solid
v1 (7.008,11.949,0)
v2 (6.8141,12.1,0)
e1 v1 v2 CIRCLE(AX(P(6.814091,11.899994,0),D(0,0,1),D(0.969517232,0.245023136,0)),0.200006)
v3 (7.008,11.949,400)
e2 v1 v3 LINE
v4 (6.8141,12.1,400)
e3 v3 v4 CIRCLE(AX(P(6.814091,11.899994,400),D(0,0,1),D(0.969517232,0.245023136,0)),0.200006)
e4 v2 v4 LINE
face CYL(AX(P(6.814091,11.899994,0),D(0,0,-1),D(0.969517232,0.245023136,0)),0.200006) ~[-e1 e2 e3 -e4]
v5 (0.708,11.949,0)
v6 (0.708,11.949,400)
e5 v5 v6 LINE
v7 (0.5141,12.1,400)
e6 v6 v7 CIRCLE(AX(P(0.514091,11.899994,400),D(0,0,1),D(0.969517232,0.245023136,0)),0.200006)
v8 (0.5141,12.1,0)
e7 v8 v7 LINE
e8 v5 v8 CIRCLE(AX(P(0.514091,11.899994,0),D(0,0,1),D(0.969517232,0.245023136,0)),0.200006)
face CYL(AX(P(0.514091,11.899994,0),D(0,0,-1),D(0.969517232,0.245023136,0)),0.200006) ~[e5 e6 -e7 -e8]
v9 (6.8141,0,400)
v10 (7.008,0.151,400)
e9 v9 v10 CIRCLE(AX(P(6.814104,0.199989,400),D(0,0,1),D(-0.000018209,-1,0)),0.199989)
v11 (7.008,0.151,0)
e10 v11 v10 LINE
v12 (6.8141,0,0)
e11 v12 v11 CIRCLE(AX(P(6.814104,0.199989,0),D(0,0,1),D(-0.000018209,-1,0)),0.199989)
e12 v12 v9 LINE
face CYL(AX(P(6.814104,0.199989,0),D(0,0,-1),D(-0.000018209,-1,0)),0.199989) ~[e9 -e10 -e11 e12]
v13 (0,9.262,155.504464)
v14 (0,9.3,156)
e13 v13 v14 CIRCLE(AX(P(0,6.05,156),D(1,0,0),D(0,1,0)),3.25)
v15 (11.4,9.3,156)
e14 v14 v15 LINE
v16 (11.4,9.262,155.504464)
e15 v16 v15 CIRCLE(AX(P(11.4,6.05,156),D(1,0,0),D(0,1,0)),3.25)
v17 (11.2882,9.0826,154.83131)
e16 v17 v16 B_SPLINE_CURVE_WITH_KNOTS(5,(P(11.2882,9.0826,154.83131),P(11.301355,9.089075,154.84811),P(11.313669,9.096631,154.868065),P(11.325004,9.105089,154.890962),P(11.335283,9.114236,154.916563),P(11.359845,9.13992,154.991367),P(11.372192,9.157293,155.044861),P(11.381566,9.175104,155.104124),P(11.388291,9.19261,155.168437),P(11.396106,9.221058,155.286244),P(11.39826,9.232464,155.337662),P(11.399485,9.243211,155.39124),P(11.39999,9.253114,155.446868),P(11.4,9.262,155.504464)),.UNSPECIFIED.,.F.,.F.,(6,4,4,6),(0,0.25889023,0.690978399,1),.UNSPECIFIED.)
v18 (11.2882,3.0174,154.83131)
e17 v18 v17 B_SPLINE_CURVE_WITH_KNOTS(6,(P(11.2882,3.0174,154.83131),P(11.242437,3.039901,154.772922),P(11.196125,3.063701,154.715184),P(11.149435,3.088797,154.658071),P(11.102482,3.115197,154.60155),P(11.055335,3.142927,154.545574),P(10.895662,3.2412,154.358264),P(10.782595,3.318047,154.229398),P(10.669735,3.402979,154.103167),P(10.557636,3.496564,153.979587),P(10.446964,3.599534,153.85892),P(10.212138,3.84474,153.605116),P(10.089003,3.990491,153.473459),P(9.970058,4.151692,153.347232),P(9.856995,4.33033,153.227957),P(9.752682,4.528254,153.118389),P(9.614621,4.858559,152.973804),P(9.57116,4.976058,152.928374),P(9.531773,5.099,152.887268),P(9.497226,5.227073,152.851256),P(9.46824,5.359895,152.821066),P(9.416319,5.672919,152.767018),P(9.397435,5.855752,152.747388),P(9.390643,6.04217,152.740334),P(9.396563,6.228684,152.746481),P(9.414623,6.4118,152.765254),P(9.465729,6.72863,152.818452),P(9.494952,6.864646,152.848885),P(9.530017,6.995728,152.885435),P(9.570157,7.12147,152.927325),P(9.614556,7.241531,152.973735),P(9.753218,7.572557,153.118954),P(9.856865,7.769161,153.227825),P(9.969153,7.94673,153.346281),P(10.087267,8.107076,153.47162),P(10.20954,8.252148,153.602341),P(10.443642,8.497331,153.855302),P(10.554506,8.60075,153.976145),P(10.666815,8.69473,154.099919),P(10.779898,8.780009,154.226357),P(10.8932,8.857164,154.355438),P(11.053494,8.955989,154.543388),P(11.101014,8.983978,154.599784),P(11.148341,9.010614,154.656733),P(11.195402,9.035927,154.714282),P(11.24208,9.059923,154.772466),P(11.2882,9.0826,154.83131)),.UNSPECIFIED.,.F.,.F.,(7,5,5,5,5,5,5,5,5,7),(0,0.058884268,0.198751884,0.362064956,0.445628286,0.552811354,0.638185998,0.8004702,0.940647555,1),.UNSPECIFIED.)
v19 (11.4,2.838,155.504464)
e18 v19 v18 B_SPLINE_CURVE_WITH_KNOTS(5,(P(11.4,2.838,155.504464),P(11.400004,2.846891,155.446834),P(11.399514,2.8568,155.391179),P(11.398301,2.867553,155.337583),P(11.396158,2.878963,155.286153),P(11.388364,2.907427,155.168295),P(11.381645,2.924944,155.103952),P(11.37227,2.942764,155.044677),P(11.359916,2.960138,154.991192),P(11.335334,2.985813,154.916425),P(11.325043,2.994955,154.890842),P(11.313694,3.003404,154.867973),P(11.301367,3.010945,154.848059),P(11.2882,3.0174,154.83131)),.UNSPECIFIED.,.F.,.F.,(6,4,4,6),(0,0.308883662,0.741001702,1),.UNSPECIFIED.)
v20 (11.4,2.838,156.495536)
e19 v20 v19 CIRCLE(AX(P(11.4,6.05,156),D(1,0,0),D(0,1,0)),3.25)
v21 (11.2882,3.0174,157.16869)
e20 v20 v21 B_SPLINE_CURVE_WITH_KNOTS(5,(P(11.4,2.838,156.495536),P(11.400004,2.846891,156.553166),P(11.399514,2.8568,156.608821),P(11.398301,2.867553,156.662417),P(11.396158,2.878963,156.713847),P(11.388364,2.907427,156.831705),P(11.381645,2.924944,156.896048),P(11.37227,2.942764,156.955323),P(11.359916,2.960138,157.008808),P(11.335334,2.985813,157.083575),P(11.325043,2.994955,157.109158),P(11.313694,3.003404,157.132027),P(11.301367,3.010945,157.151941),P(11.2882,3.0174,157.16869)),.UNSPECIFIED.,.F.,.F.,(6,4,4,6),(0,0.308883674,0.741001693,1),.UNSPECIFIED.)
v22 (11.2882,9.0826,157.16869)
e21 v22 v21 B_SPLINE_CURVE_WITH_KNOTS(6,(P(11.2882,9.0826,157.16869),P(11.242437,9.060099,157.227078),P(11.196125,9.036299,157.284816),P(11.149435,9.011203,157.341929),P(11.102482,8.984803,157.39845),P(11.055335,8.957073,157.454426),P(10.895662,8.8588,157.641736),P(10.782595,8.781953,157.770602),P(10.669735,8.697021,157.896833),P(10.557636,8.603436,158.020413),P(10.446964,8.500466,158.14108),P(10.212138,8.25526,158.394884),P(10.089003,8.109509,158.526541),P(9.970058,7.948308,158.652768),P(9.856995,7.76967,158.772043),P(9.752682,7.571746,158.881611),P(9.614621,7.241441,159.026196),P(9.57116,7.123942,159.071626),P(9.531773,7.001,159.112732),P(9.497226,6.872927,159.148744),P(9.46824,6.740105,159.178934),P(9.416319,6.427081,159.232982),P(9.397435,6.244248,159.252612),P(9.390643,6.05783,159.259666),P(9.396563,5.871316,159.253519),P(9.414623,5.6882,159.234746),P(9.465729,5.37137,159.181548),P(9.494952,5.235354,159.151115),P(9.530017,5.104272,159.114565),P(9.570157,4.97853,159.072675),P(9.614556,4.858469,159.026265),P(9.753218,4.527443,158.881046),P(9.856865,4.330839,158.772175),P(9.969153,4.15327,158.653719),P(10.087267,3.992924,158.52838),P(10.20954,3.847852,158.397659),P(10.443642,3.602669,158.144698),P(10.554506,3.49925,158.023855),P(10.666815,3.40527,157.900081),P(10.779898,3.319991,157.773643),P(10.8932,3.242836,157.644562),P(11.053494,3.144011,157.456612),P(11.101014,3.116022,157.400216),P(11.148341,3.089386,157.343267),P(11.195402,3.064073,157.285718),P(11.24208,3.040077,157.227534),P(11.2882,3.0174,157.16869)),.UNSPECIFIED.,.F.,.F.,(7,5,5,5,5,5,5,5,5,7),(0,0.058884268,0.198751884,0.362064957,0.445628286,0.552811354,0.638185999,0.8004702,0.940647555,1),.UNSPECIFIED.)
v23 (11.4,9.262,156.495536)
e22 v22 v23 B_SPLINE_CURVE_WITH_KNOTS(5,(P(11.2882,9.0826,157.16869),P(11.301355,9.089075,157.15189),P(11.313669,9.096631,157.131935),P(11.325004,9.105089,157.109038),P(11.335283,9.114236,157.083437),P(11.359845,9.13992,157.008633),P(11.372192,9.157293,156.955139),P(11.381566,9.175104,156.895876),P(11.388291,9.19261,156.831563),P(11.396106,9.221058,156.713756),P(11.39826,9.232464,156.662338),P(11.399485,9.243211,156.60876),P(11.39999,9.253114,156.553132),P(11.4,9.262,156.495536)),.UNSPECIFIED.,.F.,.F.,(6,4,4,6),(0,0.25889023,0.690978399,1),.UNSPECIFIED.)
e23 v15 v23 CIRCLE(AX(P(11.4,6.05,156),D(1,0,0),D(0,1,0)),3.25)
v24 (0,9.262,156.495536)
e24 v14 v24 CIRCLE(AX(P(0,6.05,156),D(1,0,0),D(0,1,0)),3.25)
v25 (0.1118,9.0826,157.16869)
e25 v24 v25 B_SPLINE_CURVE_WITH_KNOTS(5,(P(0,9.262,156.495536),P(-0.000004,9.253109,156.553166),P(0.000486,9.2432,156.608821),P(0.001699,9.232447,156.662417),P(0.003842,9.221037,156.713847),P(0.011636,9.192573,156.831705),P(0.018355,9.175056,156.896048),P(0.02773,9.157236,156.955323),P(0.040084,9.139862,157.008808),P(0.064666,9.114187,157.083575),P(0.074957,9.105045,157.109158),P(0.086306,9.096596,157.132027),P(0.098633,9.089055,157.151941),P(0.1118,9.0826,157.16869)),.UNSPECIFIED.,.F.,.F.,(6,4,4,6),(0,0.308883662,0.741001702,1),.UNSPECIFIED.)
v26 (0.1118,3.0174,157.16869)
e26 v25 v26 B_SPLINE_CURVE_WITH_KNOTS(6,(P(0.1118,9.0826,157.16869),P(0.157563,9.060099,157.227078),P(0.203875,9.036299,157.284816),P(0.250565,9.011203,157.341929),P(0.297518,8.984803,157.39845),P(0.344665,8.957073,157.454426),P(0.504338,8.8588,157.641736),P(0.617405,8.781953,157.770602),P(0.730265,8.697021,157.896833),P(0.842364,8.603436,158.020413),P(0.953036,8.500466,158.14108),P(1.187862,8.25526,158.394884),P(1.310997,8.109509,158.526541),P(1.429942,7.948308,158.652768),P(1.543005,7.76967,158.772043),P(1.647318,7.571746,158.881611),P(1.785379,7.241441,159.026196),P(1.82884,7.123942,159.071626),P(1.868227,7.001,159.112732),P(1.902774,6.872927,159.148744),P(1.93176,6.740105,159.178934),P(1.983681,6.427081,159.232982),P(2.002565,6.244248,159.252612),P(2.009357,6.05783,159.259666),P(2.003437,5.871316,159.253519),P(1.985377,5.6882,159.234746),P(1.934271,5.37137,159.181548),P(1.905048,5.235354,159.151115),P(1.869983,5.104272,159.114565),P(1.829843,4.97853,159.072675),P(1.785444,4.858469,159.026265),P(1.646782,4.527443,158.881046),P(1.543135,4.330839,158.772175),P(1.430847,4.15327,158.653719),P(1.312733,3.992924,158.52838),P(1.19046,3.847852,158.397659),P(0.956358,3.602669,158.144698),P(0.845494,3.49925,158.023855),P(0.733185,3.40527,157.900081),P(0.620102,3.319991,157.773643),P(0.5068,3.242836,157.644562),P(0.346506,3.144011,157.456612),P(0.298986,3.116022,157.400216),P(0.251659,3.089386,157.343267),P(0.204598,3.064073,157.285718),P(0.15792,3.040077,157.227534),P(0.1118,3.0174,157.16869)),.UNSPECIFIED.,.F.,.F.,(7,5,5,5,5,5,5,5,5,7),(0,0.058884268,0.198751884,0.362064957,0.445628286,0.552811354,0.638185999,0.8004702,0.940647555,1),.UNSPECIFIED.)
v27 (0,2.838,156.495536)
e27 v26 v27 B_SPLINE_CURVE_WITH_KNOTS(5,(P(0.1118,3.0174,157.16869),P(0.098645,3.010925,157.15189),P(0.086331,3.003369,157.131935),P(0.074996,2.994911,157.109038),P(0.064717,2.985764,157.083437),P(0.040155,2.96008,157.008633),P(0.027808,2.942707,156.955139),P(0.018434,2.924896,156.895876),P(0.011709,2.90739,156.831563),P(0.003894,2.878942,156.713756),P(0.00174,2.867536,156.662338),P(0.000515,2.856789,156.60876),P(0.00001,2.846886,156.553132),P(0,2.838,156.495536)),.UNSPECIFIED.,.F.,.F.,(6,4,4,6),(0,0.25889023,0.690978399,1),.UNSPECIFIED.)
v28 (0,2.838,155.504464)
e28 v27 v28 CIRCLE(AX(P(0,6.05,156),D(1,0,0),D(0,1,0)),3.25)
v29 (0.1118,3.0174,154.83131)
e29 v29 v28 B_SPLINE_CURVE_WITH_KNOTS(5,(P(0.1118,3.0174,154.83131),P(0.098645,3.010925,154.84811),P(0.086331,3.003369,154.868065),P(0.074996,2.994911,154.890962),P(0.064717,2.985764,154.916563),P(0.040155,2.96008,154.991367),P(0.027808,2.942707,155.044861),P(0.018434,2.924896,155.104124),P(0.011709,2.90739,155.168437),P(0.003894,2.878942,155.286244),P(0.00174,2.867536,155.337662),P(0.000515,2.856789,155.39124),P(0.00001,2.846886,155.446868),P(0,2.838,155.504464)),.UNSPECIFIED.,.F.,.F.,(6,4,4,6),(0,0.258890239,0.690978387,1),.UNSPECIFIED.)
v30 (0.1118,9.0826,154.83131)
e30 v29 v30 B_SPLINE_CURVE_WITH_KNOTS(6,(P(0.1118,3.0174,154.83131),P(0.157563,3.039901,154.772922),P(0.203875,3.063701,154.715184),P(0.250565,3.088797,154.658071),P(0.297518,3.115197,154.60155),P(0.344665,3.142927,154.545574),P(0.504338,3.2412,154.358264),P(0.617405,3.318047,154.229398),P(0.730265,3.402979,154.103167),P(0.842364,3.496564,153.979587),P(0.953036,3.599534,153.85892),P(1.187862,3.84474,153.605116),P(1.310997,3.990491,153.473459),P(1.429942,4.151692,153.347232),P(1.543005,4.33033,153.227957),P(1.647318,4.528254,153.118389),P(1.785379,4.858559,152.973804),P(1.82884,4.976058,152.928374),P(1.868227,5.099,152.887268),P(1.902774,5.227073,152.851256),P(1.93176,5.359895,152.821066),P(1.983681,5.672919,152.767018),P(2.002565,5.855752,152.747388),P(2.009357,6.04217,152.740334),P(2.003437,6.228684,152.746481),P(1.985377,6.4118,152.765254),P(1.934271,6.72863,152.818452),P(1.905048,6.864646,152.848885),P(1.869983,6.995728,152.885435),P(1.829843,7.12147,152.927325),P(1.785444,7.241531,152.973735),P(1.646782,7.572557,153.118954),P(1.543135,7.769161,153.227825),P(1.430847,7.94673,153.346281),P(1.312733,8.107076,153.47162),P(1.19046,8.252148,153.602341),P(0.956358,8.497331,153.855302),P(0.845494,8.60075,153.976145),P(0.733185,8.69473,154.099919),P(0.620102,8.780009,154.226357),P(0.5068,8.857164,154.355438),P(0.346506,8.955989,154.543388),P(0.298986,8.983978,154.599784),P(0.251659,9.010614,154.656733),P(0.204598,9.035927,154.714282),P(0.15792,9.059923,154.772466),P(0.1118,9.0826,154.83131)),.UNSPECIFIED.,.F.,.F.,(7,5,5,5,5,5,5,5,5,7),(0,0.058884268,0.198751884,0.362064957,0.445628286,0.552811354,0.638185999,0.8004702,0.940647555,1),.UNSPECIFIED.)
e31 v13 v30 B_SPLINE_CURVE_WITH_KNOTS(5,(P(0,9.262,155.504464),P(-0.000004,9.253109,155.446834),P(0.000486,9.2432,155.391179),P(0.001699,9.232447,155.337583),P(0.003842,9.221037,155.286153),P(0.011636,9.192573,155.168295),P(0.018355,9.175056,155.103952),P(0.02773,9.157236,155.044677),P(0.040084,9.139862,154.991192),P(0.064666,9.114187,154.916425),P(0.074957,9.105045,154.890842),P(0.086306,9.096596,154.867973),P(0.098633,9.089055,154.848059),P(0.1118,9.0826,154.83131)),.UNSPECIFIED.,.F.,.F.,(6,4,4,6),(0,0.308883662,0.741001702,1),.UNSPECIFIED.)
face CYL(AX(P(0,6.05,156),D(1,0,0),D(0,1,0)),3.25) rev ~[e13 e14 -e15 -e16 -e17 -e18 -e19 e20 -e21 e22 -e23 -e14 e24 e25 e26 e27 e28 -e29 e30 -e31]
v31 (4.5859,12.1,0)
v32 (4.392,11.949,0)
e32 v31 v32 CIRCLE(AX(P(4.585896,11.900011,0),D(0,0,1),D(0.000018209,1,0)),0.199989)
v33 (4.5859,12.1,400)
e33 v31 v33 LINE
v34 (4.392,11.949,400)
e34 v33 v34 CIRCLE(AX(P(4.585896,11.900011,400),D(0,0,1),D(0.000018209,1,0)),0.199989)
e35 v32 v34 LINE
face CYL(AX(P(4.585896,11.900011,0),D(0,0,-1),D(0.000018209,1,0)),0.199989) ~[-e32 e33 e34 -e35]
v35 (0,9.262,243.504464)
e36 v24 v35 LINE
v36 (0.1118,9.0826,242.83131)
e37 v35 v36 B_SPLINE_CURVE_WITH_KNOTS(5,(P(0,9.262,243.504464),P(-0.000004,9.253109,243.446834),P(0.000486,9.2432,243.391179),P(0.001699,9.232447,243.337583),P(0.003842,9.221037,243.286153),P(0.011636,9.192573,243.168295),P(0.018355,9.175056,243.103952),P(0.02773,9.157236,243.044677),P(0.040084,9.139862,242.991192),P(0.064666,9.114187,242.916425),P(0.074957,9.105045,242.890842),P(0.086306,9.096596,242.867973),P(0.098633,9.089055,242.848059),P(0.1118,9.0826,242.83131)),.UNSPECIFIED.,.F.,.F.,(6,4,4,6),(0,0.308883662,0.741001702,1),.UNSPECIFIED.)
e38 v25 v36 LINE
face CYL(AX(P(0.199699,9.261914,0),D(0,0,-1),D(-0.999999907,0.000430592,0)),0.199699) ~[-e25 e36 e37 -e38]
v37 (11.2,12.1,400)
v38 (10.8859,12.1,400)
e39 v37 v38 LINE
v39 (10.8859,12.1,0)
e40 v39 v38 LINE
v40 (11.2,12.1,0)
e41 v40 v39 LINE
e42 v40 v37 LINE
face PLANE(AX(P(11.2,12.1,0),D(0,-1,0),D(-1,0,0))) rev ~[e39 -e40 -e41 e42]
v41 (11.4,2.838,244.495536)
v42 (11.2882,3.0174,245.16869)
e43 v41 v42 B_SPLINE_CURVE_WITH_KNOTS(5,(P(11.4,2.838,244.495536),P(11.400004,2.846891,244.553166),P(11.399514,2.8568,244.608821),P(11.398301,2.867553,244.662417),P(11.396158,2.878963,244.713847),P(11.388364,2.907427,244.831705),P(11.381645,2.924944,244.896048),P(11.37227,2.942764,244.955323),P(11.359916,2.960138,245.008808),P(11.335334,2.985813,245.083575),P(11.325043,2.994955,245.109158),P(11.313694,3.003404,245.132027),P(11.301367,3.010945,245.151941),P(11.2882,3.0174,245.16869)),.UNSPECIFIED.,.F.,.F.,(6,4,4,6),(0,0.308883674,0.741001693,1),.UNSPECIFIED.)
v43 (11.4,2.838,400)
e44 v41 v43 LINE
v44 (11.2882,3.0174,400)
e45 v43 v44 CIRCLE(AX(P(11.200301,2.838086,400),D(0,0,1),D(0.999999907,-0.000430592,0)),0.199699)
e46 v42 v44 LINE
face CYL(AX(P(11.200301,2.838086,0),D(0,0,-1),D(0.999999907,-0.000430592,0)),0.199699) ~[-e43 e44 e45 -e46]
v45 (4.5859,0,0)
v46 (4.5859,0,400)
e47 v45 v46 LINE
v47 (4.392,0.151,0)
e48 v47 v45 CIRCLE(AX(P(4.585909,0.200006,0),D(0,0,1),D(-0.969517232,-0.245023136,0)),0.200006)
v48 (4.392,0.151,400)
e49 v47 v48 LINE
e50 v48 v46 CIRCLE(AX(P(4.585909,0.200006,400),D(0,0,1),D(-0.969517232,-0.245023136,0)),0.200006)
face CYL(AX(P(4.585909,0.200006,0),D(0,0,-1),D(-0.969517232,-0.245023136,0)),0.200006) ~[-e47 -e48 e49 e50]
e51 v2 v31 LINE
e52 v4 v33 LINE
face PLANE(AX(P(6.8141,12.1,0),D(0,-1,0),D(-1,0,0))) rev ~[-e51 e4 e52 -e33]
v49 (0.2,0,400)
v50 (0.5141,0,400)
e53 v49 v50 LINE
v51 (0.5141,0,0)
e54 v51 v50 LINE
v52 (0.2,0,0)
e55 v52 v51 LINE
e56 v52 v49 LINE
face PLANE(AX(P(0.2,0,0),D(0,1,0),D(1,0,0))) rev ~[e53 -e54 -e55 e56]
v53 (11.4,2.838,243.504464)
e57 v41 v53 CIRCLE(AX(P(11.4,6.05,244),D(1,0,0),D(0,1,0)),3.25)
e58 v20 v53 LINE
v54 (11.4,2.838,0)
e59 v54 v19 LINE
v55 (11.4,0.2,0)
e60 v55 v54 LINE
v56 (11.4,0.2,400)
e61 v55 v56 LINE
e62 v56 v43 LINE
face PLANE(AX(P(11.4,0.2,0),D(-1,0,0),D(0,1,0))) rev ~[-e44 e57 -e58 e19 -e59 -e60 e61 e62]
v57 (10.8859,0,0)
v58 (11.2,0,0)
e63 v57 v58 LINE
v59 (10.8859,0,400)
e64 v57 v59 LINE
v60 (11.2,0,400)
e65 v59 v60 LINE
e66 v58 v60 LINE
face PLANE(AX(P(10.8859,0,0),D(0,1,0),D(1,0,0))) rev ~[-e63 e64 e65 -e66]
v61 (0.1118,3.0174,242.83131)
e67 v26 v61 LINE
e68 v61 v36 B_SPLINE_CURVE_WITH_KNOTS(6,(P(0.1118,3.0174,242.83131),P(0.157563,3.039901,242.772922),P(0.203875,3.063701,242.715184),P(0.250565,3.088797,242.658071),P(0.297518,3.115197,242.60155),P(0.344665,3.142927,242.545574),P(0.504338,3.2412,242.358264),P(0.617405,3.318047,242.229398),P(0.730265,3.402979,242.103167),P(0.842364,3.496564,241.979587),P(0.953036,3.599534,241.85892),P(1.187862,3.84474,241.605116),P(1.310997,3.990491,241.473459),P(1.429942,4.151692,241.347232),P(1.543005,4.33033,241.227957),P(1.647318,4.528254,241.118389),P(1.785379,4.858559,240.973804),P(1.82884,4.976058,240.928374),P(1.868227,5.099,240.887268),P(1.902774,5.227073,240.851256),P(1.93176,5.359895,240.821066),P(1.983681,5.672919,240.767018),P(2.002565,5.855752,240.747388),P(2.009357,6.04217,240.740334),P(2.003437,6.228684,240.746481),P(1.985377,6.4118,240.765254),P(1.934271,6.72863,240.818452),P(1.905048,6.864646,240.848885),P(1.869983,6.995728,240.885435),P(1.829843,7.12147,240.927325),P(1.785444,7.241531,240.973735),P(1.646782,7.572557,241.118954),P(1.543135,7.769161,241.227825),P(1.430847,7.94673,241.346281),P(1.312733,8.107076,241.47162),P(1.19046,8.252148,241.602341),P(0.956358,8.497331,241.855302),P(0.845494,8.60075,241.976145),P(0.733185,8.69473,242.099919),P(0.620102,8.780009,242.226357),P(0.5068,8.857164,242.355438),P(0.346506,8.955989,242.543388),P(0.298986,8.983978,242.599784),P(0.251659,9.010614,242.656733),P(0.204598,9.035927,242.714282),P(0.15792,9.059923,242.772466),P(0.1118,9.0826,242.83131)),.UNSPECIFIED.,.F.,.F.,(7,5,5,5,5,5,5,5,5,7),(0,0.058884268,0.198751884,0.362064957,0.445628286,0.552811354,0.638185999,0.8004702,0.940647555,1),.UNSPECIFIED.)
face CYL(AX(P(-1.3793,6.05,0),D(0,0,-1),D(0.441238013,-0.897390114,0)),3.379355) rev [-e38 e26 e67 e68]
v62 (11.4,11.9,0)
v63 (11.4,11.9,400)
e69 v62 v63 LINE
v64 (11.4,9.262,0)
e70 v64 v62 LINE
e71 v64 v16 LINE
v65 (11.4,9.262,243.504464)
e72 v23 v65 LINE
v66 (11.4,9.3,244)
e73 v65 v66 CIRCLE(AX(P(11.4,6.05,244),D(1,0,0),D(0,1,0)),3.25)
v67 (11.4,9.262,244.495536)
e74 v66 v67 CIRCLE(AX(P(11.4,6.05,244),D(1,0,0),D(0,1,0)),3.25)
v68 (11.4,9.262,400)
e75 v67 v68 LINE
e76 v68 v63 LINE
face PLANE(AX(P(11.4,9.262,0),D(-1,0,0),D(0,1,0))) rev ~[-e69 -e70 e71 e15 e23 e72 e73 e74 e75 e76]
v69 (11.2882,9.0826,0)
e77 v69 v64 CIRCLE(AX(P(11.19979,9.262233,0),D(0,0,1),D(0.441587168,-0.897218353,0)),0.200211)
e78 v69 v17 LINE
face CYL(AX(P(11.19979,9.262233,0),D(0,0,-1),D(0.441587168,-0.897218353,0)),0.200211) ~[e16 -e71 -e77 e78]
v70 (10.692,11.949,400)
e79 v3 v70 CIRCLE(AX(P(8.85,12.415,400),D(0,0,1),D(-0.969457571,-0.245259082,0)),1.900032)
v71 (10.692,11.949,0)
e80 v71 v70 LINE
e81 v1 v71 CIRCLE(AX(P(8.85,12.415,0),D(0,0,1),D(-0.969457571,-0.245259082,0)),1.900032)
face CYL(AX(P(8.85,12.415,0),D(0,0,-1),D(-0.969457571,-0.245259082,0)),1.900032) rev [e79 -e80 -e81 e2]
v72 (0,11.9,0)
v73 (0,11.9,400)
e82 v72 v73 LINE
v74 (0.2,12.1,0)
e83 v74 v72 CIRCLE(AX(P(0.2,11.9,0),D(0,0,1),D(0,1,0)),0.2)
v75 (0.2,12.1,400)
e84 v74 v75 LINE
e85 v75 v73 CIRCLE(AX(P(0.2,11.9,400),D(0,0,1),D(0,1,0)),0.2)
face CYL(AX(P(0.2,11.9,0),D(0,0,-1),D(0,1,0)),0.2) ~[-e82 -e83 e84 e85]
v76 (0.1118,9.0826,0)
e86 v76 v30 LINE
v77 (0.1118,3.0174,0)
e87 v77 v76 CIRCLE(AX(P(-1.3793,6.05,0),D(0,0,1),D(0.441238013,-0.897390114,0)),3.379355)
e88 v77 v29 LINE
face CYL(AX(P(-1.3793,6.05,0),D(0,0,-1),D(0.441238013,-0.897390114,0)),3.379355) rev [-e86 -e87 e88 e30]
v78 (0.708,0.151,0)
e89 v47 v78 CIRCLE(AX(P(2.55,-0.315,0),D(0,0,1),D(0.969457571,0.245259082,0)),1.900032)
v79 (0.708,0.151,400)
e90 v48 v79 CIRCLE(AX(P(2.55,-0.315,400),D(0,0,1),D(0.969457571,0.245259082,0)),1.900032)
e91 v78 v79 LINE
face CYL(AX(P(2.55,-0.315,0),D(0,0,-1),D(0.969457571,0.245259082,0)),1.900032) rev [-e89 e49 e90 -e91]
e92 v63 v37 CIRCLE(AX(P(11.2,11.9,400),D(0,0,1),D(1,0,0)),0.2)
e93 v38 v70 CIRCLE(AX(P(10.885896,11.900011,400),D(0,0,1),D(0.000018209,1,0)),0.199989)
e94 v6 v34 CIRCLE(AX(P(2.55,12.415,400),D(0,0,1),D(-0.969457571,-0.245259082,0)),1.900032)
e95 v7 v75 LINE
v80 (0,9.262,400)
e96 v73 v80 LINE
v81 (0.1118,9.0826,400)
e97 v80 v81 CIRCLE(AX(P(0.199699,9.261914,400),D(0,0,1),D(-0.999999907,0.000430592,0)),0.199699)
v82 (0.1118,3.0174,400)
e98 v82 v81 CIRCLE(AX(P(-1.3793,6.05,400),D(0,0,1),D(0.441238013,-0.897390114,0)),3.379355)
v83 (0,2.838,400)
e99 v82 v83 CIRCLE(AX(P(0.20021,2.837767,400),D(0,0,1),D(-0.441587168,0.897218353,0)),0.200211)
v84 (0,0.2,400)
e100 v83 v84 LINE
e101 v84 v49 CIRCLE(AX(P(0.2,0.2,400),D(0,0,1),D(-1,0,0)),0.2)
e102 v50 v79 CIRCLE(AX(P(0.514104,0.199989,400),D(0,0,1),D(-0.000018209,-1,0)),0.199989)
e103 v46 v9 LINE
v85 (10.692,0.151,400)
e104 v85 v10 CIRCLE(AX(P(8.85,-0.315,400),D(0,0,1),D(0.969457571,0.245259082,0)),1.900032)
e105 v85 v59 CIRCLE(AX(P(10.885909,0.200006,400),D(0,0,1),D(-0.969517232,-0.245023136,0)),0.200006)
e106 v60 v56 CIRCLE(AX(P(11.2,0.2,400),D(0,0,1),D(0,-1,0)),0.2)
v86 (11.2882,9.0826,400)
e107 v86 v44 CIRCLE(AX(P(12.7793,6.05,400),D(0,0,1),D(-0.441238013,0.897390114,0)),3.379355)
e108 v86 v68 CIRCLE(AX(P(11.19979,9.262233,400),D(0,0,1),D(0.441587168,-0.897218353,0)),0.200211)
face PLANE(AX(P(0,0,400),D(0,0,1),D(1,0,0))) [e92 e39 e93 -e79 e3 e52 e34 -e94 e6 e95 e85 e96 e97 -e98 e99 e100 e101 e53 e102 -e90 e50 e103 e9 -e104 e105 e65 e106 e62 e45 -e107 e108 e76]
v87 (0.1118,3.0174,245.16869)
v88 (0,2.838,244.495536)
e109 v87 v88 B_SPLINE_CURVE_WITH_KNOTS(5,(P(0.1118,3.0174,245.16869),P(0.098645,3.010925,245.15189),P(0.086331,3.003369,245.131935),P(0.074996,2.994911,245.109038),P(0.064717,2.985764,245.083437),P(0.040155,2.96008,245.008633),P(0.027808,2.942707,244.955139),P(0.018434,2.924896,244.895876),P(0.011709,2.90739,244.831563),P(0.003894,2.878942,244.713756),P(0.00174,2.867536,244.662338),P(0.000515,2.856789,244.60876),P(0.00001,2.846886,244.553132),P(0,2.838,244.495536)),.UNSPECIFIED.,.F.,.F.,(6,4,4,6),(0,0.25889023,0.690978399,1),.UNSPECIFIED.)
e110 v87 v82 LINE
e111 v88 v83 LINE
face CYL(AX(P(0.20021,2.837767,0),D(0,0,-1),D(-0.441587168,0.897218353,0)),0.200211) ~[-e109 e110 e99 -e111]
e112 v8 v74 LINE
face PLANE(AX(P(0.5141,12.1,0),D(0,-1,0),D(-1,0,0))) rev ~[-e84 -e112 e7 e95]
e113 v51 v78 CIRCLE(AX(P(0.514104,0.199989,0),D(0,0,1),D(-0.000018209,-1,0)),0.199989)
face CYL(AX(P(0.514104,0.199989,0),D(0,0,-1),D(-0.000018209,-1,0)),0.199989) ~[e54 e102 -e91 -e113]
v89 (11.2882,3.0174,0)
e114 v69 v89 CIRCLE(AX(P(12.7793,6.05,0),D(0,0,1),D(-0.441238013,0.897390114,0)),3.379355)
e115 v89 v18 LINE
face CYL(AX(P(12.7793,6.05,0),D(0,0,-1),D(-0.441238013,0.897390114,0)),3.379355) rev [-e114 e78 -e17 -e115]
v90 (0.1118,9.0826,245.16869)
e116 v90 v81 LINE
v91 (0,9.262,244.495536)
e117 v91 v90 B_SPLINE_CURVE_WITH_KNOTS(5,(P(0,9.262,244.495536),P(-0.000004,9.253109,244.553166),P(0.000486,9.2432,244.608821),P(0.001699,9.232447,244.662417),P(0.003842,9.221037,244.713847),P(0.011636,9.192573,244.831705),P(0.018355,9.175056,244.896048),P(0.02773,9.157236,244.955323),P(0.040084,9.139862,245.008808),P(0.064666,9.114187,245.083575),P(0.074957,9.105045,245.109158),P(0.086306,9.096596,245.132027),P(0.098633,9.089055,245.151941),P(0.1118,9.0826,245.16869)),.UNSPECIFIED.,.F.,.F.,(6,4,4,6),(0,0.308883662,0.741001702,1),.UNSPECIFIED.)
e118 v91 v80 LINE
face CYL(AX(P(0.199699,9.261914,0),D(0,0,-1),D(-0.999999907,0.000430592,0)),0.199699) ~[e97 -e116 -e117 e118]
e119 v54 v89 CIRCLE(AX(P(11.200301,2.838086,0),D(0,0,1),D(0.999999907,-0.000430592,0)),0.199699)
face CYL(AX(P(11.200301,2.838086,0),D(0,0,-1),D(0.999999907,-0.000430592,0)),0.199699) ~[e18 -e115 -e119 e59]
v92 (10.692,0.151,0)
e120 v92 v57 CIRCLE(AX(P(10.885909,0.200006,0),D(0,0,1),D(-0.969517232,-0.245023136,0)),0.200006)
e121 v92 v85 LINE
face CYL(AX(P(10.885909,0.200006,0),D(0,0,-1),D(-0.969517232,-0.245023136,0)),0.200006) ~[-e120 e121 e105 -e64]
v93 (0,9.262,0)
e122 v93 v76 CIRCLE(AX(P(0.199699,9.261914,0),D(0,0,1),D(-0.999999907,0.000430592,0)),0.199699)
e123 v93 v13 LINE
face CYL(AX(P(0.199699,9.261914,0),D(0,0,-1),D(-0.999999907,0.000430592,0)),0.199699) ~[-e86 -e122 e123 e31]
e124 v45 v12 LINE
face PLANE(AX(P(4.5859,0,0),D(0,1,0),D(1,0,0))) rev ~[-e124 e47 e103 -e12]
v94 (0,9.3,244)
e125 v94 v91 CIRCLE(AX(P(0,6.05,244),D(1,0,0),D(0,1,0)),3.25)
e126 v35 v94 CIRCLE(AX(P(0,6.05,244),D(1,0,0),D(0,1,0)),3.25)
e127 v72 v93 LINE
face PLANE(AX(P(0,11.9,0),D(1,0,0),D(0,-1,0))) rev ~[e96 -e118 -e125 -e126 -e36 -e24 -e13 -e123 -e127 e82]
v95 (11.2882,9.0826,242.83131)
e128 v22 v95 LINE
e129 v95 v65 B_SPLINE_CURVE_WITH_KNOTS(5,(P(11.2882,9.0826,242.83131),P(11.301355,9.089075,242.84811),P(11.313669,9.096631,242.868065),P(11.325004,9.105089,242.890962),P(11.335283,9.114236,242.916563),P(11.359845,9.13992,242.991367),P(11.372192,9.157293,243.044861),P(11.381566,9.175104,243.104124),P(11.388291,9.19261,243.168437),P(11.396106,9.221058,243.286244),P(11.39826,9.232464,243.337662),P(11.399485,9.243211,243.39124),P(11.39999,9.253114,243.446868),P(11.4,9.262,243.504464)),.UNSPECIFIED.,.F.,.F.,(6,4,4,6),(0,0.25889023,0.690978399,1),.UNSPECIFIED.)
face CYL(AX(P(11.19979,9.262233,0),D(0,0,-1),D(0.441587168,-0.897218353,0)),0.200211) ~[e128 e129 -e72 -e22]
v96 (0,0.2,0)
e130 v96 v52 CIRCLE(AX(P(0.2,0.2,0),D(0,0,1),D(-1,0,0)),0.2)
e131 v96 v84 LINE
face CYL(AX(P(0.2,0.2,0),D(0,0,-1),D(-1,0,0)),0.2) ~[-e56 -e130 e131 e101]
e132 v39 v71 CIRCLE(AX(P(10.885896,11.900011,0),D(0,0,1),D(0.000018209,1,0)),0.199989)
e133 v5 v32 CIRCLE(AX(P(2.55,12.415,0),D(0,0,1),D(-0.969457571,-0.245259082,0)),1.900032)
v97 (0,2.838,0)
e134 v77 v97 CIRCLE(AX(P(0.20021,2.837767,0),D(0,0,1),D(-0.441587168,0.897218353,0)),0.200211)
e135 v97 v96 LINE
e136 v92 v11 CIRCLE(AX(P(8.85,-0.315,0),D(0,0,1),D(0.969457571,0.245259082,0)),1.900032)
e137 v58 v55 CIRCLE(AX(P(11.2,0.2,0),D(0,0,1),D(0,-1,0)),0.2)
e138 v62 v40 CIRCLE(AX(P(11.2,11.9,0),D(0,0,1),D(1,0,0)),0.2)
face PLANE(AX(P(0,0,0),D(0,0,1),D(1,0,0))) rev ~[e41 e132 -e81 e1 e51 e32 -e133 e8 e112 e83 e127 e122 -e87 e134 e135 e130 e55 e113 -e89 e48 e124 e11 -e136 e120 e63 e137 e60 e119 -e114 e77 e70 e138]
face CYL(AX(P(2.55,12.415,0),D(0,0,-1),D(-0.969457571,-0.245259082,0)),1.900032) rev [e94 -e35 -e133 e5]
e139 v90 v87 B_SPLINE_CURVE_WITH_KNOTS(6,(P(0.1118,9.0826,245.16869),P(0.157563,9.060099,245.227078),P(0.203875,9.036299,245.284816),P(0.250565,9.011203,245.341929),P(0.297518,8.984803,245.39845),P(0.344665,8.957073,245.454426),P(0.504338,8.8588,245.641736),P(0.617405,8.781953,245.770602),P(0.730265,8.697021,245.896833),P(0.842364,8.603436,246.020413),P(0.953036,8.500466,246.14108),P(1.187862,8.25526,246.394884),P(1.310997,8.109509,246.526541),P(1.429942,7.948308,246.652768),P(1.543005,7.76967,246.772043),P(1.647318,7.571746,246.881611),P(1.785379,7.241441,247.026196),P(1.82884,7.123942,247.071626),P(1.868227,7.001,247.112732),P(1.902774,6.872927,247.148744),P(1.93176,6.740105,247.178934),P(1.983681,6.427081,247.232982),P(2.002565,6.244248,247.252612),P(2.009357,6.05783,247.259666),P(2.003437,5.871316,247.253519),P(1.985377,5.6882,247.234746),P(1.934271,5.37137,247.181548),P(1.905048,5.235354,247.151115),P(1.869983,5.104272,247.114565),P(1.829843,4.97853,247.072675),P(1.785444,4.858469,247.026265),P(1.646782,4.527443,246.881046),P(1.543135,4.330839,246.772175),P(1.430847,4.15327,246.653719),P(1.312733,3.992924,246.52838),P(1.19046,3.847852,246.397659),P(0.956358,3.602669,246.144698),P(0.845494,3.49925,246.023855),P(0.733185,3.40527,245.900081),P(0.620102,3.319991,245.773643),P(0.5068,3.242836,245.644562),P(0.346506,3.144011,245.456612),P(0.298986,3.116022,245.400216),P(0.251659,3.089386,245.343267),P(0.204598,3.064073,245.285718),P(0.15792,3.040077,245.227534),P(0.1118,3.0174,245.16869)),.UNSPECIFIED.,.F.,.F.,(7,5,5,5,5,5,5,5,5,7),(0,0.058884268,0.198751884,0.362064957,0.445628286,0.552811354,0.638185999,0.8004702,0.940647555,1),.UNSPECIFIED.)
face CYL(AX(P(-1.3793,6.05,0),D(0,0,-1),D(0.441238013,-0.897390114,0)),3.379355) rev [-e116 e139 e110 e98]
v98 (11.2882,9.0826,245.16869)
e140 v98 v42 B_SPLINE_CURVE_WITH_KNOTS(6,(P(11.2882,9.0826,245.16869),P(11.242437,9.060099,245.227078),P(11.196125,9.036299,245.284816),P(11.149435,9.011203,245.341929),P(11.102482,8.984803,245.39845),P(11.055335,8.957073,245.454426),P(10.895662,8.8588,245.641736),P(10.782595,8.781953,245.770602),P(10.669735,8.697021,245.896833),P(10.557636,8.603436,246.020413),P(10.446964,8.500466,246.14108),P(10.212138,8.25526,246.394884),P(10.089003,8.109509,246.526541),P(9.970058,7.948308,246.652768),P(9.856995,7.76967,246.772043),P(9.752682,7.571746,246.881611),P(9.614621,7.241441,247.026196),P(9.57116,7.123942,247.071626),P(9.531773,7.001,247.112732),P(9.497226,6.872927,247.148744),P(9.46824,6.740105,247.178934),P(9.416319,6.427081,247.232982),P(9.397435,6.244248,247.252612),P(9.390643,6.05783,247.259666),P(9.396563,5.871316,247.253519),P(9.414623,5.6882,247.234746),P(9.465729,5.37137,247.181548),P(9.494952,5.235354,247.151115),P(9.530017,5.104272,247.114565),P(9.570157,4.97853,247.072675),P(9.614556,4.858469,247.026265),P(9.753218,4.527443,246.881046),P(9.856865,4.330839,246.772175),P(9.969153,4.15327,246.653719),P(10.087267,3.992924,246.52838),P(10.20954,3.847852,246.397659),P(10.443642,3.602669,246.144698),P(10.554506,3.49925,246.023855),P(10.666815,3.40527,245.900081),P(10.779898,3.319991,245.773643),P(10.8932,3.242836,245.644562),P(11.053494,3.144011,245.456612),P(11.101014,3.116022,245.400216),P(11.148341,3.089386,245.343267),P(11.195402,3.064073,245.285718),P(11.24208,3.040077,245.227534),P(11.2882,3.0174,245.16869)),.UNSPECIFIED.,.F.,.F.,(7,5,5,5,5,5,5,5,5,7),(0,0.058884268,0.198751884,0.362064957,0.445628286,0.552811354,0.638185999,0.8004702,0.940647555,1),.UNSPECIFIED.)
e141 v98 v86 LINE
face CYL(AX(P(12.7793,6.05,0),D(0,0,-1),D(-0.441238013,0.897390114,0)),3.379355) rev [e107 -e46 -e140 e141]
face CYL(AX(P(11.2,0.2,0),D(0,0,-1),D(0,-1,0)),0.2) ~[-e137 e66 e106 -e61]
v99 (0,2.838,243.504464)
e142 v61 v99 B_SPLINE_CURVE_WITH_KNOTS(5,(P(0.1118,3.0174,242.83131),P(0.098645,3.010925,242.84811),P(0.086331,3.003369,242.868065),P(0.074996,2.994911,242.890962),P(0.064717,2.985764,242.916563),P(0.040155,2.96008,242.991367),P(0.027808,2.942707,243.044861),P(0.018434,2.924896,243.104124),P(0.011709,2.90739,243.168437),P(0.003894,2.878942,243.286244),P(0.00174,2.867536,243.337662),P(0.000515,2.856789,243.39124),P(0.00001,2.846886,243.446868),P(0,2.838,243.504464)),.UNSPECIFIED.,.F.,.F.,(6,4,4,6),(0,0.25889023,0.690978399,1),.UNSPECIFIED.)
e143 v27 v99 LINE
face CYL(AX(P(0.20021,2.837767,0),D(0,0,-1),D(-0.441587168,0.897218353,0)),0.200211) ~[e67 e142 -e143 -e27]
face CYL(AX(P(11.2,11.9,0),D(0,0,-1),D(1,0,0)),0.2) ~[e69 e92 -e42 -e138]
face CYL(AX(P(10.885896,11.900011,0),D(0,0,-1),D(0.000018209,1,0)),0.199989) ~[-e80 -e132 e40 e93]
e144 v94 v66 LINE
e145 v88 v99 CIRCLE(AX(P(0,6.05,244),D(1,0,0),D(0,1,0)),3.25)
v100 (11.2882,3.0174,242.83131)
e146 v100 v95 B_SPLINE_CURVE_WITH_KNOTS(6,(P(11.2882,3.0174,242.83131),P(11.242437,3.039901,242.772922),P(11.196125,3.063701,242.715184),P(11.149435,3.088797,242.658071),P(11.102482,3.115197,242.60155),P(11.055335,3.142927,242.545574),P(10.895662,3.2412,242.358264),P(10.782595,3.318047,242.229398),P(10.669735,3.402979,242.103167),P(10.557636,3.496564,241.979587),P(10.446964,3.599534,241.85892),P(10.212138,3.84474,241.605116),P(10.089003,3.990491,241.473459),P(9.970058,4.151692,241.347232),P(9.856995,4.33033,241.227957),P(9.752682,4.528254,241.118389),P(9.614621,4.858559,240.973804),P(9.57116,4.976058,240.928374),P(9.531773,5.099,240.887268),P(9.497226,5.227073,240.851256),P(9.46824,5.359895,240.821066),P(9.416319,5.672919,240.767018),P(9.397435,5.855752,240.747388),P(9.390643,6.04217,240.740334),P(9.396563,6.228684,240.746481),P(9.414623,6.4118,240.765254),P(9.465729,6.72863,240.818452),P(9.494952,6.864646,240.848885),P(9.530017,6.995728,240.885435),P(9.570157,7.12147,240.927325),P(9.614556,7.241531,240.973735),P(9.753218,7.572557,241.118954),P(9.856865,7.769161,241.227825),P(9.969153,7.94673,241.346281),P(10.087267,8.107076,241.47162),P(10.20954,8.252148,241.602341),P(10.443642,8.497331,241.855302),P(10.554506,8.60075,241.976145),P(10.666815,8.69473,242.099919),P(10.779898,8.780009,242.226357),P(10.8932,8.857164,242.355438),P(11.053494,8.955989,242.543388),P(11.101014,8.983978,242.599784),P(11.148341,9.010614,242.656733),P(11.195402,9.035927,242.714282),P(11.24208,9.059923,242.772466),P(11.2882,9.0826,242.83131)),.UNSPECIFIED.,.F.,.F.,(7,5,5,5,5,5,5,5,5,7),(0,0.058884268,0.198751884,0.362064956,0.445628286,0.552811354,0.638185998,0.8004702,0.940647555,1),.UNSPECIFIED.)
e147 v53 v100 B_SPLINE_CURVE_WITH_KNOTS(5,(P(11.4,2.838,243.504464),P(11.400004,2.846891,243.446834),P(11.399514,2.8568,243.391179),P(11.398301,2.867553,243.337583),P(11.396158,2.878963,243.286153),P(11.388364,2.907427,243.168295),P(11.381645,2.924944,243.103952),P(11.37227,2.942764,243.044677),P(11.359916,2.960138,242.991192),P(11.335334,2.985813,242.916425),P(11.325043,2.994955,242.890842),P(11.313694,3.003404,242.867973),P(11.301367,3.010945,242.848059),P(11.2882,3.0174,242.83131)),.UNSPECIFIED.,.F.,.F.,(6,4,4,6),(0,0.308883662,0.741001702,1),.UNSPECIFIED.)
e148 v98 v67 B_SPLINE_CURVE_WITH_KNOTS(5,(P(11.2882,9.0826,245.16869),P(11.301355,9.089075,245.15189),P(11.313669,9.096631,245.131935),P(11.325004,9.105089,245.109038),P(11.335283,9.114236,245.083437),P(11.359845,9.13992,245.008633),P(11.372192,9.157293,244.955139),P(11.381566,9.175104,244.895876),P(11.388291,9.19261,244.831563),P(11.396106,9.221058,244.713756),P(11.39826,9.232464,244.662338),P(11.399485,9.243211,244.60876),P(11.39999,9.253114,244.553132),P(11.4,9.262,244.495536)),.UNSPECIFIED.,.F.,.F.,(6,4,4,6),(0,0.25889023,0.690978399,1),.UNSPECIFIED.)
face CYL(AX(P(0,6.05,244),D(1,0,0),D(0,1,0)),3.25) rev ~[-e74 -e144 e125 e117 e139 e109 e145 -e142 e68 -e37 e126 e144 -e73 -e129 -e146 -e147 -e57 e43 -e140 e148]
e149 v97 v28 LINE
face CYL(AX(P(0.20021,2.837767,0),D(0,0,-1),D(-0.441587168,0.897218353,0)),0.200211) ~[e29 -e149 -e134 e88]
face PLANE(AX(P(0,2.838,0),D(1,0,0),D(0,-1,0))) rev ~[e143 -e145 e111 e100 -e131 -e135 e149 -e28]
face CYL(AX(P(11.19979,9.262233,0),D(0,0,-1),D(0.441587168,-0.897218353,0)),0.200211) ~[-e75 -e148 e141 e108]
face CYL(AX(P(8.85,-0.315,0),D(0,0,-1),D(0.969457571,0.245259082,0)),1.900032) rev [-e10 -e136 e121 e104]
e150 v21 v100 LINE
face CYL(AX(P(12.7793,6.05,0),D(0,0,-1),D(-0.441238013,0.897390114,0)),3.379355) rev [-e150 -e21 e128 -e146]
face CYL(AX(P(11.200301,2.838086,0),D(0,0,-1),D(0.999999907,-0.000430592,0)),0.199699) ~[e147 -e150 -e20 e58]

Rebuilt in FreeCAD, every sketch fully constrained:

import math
import FreeCAD as App
import Part
import Sketcher
Q = App.Units.Quantity


def add_polygon(sketch, points):
    """Adds a closed chain of lines whose ends are joined by coincident constraints."""
    first, n = sketch.GeometryCount, len(points)
    for a, b in zip(points, points[1:] + points[:1]):
        sketch.addGeometry(Part.LineSegment(App.Vector(*a, 0), App.Vector(*b, 0)), False)
    for i in range(n):
        sketch.addConstraint(Sketcher.Constraint("Coincident", first + i, 2, first + (i + 1) % n, 1))

doc = App.newDocument("Part")
body = doc.addObject("PartDesign::Body", "Body")

# Sketch on XY plane
sketch1 = body.newObject("Sketcher::SketchObject", "Sketch")
sketch1.AttachmentSupport = (doc.getObject("XY_Plane"), [""])
sketch1.MapMode = "FlatFace"
sketch1.addGeometry(Part.LineSegment(App.Vector(0, 2.84, 0), App.Vector(0, 0.2, 0)), False)
sketch1.addGeometry(Part.ArcOfCircle(Part.Circle(App.Vector(0.2, 0.2, 0), App.Vector(0, 0, 1), 0.2), math.radians(180), math.radians(270)), False)
sketch1.addGeometry(Part.LineSegment(App.Vector(0.2, 0, 0), App.Vector(0.51, 0, 0)), False)
sketch1.addGeometry(Part.ArcOfCircle(Part.Circle(App.Vector(0.51, 0.2, 0), App.Vector(0, 0, 1), 0.2), math.radians(-90), math.radians(-14)), False)
sketch1.addGeometry(Part.ArcOfCircle(Part.Circle(App.Vector(2.55, -0.32, 0), App.Vector(0, 0, 1), 1.9), math.radians(14), math.radians(166)), False)
sketch1.addGeometry(Part.ArcOfCircle(Part.Circle(App.Vector(4.59, 0.2, 0), App.Vector(0, 0, 1), 0.2), math.radians(-166), math.radians(-90)), False)
sketch1.addGeometry(Part.LineSegment(App.Vector(4.59, 0, 0), App.Vector(6.81, 0, 0)), False)
sketch1.addGeometry(Part.ArcOfCircle(Part.Circle(App.Vector(6.81, 0.2, 0), App.Vector(0, 0, 1), 0.2), math.radians(-90), math.radians(-14)), False)
sketch1.addGeometry(Part.ArcOfCircle(Part.Circle(App.Vector(8.85, -0.32, 0), App.Vector(0, 0, 1), 1.9), math.radians(14), math.radians(166)), False)
sketch1.addGeometry(Part.ArcOfCircle(Part.Circle(App.Vector(10.89, 0.2, 0), App.Vector(0, 0, 1), 0.2), math.radians(-166), math.radians(-90)), False)
sketch1.addGeometry(Part.LineSegment(App.Vector(10.89, 0, 0), App.Vector(11.2, 0, 0)), False)
sketch1.addGeometry(Part.ArcOfCircle(Part.Circle(App.Vector(11.2, 0.2, 0), App.Vector(0, 0, 1), 0.2), math.radians(-90), math.radians(0)), False)
sketch1.addGeometry(Part.LineSegment(App.Vector(11.4, 0.2, 0), App.Vector(11.4, 2.84, 0)), False)
sketch1.addGeometry(Part.ArcOfCircle(Part.Circle(App.Vector(11.2, 2.84, 0), App.Vector(0, 0, 1), 0.2), math.radians(0), math.radians(64)), False)
sketch1.addGeometry(Part.ArcOfCircle(Part.Circle(App.Vector(12.78, 6.05, 0), App.Vector(0, 0, 1), 3.38), math.radians(116), math.radians(244)), False)
sketch1.addGeometry(Part.ArcOfCircle(Part.Circle(App.Vector(11.2, 9.26, 0), App.Vector(0, 0, 1), 0.2), math.radians(-64), math.radians(0)), False)
sketch1.addGeometry(Part.LineSegment(App.Vector(11.4, 9.26, 0), App.Vector(11.4, 11.9, 0)), False)
sketch1.addGeometry(Part.ArcOfCircle(Part.Circle(App.Vector(11.2, 11.9, 0), App.Vector(0, 0, 1), 0.2), math.radians(0), math.radians(90)), False)
sketch1.addGeometry(Part.LineSegment(App.Vector(11.2, 12.1, 0), App.Vector(10.89, 12.1, 0)), False)
sketch1.addGeometry(Part.ArcOfCircle(Part.Circle(App.Vector(10.89, 11.9, 0), App.Vector(0, 0, 1), 0.2), math.radians(90), math.radians(166)), False)
sketch1.addGeometry(Part.ArcOfCircle(Part.Circle(App.Vector(8.85, 12.41, 0), App.Vector(0, 0, 1), 1.9), math.radians(-166), math.radians(-14)), False)
sketch1.addGeometry(Part.ArcOfCircle(Part.Circle(App.Vector(6.81, 11.9, 0), App.Vector(0, 0, 1), 0.2), math.radians(14), math.radians(90)), False)
sketch1.addGeometry(Part.LineSegment(App.Vector(6.81, 12.1, 0), App.Vector(4.59, 12.1, 0)), False)
sketch1.addGeometry(Part.ArcOfCircle(Part.Circle(App.Vector(4.59, 11.9, 0), App.Vector(0, 0, 1), 0.2), math.radians(90), math.radians(166)), False)
sketch1.addGeometry(Part.ArcOfCircle(Part.Circle(App.Vector(2.55, 12.41, 0), App.Vector(0, 0, 1), 1.9), math.radians(-166), math.radians(-14)), False)
sketch1.addGeometry(Part.ArcOfCircle(Part.Circle(App.Vector(0.51, 11.9, 0), App.Vector(0, 0, 1), 0.2), math.radians(14), math.radians(90)), False)
sketch1.addGeometry(Part.LineSegment(App.Vector(0.51, 12.1, 0), App.Vector(0.2, 12.1, 0)), False)
sketch1.addGeometry(Part.ArcOfCircle(Part.Circle(App.Vector(0.2, 11.9, 0), App.Vector(0, 0, 1), 0.2), math.radians(90), math.radians(180)), False)
sketch1.addGeometry(Part.LineSegment(App.Vector(0, 11.9, 0), App.Vector(0, 9.26, 0)), False)
sketch1.addGeometry(Part.ArcOfCircle(Part.Circle(App.Vector(0.2, 9.26, 0), App.Vector(0, 0, 1), 0.2), math.radians(180), math.radians(244)), False)
sketch1.addGeometry(Part.ArcOfCircle(Part.Circle(App.Vector(-1.38, 6.05, 0), App.Vector(0, 0, 1), 3.38), math.radians(-64), math.radians(64)), False)
sketch1.addGeometry(Part.ArcOfCircle(Part.Circle(App.Vector(0.2, 2.84, 0), App.Vector(0, 0, 1), 0.2), math.radians(116), math.radians(180)), False)
sketch1.addConstraint(Sketcher.Constraint("Tangent", 0, 2, 1, 1))
sketch1.addConstraint(Sketcher.Constraint("Tangent", 1, 2, 2, 1))
sketch1.addConstraint(Sketcher.Constraint("Tangent", 2, 2, 3, 1))
sketch1.addConstraint(Sketcher.Constraint("Tangent", 3, 2, 4, 2))
sketch1.addConstraint(Sketcher.Constraint("Tangent", 4, 1, 5, 1))
sketch1.addConstraint(Sketcher.Constraint("Tangent", 5, 2, 6, 1))
sketch1.addConstraint(Sketcher.Constraint("Tangent", 6, 2, 7, 1))
sketch1.addConstraint(Sketcher.Constraint("Tangent", 7, 2, 8, 2))
sketch1.addConstraint(Sketcher.Constraint("Tangent", 8, 1, 9, 1))
sketch1.addConstraint(Sketcher.Constraint("Tangent", 9, 2, 10, 1))
sketch1.addConstraint(Sketcher.Constraint("Tangent", 10, 2, 11, 1))
sketch1.addConstraint(Sketcher.Constraint("Tangent", 11, 2, 12, 1))
sketch1.addConstraint(Sketcher.Constraint("Tangent", 12, 2, 13, 1))
sketch1.addConstraint(Sketcher.Constraint("Tangent", 13, 2, 14, 2))
sketch1.addConstraint(Sketcher.Constraint("Tangent", 14, 1, 15, 1))
sketch1.addConstraint(Sketcher.Constraint("Tangent", 15, 2, 16, 1))
sketch1.addConstraint(Sketcher.Constraint("Tangent", 16, 2, 17, 1))
sketch1.addConstraint(Sketcher.Constraint("Tangent", 17, 2, 18, 1))
sketch1.addConstraint(Sketcher.Constraint("Tangent", 18, 2, 19, 1))
sketch1.addConstraint(Sketcher.Constraint("Tangent", 19, 2, 20, 2))
sketch1.addConstraint(Sketcher.Constraint("Tangent", 20, 1, 21, 1))
sketch1.addConstraint(Sketcher.Constraint("Tangent", 21, 2, 22, 1))
sketch1.addConstraint(Sketcher.Constraint("Tangent", 22, 2, 23, 1))
sketch1.addConstraint(Sketcher.Constraint("Tangent", 23, 2, 24, 2))
sketch1.addConstraint(Sketcher.Constraint("Tangent", 24, 1, 25, 1))
sketch1.addConstraint(Sketcher.Constraint("Tangent", 25, 2, 26, 1))
sketch1.addConstraint(Sketcher.Constraint("Tangent", 26, 2, 27, 1))
sketch1.addConstraint(Sketcher.Constraint("Tangent", 27, 2, 28, 1))
sketch1.addConstraint(Sketcher.Constraint("Tangent", 28, 2, 29, 1))
sketch1.addConstraint(Sketcher.Constraint("Tangent", 29, 2, 30, 2))
sketch1.addConstraint(Sketcher.Constraint("Tangent", 30, 1, 31, 1))
sketch1.addConstraint(Sketcher.Constraint("Tangent", 31, 2, 0, 1))
sketch1.addConstraint(Sketcher.Constraint("Vertical", 0))
sketch1.addConstraint(Sketcher.Constraint("Horizontal", 2))
sketch1.addConstraint(Sketcher.Constraint("Horizontal", 6))
sketch1.addConstraint(Sketcher.Constraint("Horizontal", 10))
sketch1.addConstraint(Sketcher.Constraint("Vertical", 12))
sketch1.addConstraint(Sketcher.Constraint("Vertical", 16))
sketch1.addConstraint(Sketcher.Constraint("Horizontal", 18))
sketch1.addConstraint(Sketcher.Constraint("Horizontal", 22))
sketch1.addConstraint(Sketcher.Constraint("Horizontal", 26))
sketch1.addConstraint(Sketcher.Constraint("Vertical", 28))
sketch1.addConstraint(Sketcher.Constraint("Equal", 1, 3))
sketch1.addConstraint(Sketcher.Constraint("Equal", 3, 5))
sketch1.addConstraint(Sketcher.Constraint("Equal", 5, 7))
sketch1.addConstraint(Sketcher.Constraint("Equal", 4, 8))
sketch1.addConstraint(Sketcher.Constraint("Equal", 7, 9))
sketch1.addConstraint(Sketcher.Constraint("Equal", 9, 11))
sketch1.addConstraint(Sketcher.Constraint("Equal", 11, 13))
sketch1.addConstraint(Sketcher.Constraint("Equal", 13, 15))
sketch1.addConstraint(Sketcher.Constraint("Equal", 15, 17))
sketch1.addConstraint(Sketcher.Constraint("Equal", 17, 19))
sketch1.addConstraint(Sketcher.Constraint("Equal", 8, 20))
sketch1.addConstraint(Sketcher.Constraint("Equal", 19, 21))
sketch1.addConstraint(Sketcher.Constraint("Equal", 21, 23))
sketch1.addConstraint(Sketcher.Constraint("Equal", 20, 24))
sketch1.addConstraint(Sketcher.Constraint("Equal", 23, 25))
sketch1.addConstraint(Sketcher.Constraint("Equal", 25, 27))
sketch1.addConstraint(Sketcher.Constraint("Equal", 27, 29))
sketch1.addConstraint(Sketcher.Constraint("Equal", 14, 30))
sketch1.addConstraint(Sketcher.Constraint("Equal", 29, 31))
sketch1.addConstraint(Sketcher.Constraint("PointOnObject", 0, 2, -2))
sketch1.addConstraint(Sketcher.Constraint("PointOnObject", 1, 2, -1))
sketch1.addConstraint(Sketcher.Constraint("PointOnObject", 5, 2, -1))
sketch1.addConstraint(Sketcher.Constraint("PointOnObject", 9, 2, -1))
sketch1.addConstraint(Sketcher.Constraint("PointOnObject", 27, 2, -2))
sketch1.addConstraint(Sketcher.Constraint("Horizontal", 4, 3, 8, 3))
sketch1.addConstraint(Sketcher.Constraint("Horizontal", 19, 3, 21, 3))
sketch1.addConstraint(Sketcher.Constraint("Horizontal", 20, 3, 24, 3))
sketch1.addConstraint(Sketcher.Constraint("Horizontal", 23, 3, 25, 3))
sketch1.addConstraint(Sketcher.Constraint("Horizontal", 15, 3, 29, 3))
sketch1.addConstraint(Sketcher.Constraint("Horizontal", 14, 3, 30, 3))
sketch1.addConstraint(Sketcher.Constraint("Horizontal", 13, 3, 31, 3))
sketch1.addConstraint(Sketcher.Constraint("Vertical", 9, 3, 19, 3))
sketch1.addConstraint(Sketcher.Constraint("Vertical", 8, 3, 20, 3))
sketch1.addConstraint(Sketcher.Constraint("Vertical", 5, 3, 23, 3))
sketch1.addConstraint(Sketcher.Constraint("Equal", 2, 10))
sketch1.addConstraint(Sketcher.Constraint("Equal", 12, 16))
sketch1.addConstraint(Sketcher.Constraint("Radius", 1, Q("0.2 mm")))
sketch1.addConstraint(Sketcher.Constraint("Radius", 4, Q("1.9 mm")))
sketch1.addConstraint(Sketcher.Constraint("DistanceX", -1, 1, 11, 3, Q("11.2 mm")))
sketch1.addConstraint(Sketcher.Constraint("DistanceY", -1, 1, 17, 3, Q("11.9 mm")))
sketch1.addConstraint(Sketcher.Constraint("Radius", 14, Q("3.3794 mm")))
sketch1.addConstraint(Sketcher.Constraint("DistanceX", 3, 3, 7, 3, Q("6.3 mm")))
sketch1.addConstraint(Sketcher.Constraint("DistanceX", 2, 1, 2, 2, Q("0.314 mm")))
sketch1.addConstraint(Sketcher.Constraint("DistanceY", 0, 2, 0, 1, Q("2.638 mm")))
pad1 = body.newObject("PartDesign::Pad", "Pad")
pad1.Profile = sketch1
pad1.Length = 400

# Sketch on XY plane
sketch2 = body.newObject("Sketcher::SketchObject", "Sketch001")
sketch2.AttachmentSupport = (doc.getObject("XY_Plane"), [""])
sketch2.MapMode = "FlatFace"
sketch2.AttachmentOffset = App.Placement(App.Vector(0, 0, 156), App.Rotation())
add_polygon(sketch2, [(0, 6), (11.4, 6), (11.4, 9.3), (0, 9.3)])  # lines 0-3
sketch2.addGeometry(Part.LineSegment(App.Vector(0, 6, 0), App.Vector(11.4, 6, 0)), True)  # axis
sketch2.addConstraint(Sketcher.Constraint("Horizontal", 0))
sketch2.addConstraint(Sketcher.Constraint("Vertical", 1))
sketch2.addConstraint(Sketcher.Constraint("Horizontal", 2))
sketch2.addConstraint(Sketcher.Constraint("Vertical", 3))
sketch2.addConstraint(Sketcher.Constraint("Horizontal", 4))
sketch2.addConstraint(Sketcher.Constraint("Coincident", 4, 1, 3, 2))
sketch2.addConstraint(Sketcher.Constraint("PointOnObject", 2, 2, -2))
sketch2.addConstraint(Sketcher.Constraint("Vertical", 1, 2, 4, 2))
sketch2.addConstraint(Sketcher.Constraint("DistanceX", 0, 1, 0, 2, Q("11.4 mm")))
sketch2.addConstraint(Sketcher.Constraint("DistanceY", 1, 1, 1, 2, Q("3.25 mm")))
sketch2.addConstraint(Sketcher.Constraint("DistanceY", -1, 1, 1, 2, Q("9.3 mm")))
groove = body.newObject("PartDesign::Groove", "Groove")
groove.Profile = sketch2
groove.ReferenceAxis = (sketch2, ["Axis0"])
groove.Angle = 360
doc.recompute()

linearpattern = body.newObject("PartDesign::LinearPattern", "LinearPattern")
linearpattern.Originals = [groove]
linearpattern.Direction = (doc.getObject("Z_Axis"), [""])
linearpattern.Mode = "offset"
linearpattern.Offset = 88
linearpattern.Occurrences = 2
body.Tip = linearpattern

doc.recompute()
